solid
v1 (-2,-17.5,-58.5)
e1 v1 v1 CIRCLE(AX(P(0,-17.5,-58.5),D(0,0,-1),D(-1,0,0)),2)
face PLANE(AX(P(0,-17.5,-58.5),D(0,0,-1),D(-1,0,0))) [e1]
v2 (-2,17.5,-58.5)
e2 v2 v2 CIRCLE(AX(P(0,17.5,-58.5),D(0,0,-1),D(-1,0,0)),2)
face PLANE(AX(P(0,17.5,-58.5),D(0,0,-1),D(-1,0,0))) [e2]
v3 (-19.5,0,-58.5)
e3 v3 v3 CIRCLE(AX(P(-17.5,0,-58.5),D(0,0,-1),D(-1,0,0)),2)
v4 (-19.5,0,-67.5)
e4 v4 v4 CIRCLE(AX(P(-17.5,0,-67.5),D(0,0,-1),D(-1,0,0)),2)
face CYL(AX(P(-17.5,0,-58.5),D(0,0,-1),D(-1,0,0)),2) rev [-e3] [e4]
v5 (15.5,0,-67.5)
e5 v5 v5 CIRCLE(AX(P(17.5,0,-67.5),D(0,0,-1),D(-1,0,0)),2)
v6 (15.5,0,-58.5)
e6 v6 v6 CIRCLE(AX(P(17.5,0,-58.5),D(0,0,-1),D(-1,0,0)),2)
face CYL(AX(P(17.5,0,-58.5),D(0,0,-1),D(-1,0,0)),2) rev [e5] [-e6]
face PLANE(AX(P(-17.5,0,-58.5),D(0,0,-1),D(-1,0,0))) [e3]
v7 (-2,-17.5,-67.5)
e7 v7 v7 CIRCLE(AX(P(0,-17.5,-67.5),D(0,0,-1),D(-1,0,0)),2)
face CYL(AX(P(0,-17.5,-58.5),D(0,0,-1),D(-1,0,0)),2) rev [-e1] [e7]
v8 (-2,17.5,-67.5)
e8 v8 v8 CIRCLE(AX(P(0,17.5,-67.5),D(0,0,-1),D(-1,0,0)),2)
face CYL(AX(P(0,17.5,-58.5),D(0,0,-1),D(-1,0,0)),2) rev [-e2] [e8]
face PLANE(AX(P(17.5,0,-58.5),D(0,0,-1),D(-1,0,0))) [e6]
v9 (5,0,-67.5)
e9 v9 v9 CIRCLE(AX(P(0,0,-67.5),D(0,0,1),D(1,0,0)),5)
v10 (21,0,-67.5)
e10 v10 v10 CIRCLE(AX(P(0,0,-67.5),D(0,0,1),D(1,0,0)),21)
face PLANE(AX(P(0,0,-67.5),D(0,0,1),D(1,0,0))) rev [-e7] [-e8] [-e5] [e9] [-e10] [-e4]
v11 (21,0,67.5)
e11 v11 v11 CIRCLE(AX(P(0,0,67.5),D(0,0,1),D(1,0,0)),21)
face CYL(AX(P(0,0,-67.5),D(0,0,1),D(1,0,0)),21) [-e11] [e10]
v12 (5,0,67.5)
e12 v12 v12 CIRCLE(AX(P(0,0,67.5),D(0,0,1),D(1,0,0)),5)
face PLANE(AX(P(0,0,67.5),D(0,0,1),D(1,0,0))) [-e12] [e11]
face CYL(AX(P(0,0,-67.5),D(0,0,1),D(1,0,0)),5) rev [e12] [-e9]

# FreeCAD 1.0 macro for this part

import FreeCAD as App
import Part
import Sketcher

doc = App.newDocument("Part")
params = doc.addObject("Spreadsheet::Sheet", "Params")
for row, (alias, value) in enumerate([
    ("sketch1_diameter", "42 mm"),
    ("pad1_length", "67.5 mm"),
    ("pad1_length2", "67.5 mm"),
    ("sketch2_diameter", "10 mm"),
    ("pocket1_length", "135 mm"),
    ("sketch3_diameter", "4 mm"),
    ("pocket2_length", "9 mm"),
], start=1):
    params.set(f"A{row}", alias)
    params.set(f"B{row}", "=" + value)
    params.setAlias(f"B{row}", alias)

body = doc.addObject("PartDesign::Body", "Body")

# Sketch on XY plane
sketch1 = body.newObject("Sketcher::SketchObject", "Sketch")
sketch1.AttachmentSupport = (doc.getObject("XY_Plane"), [""])
sketch1.MapMode = "FlatFace"
sketch1.addGeometry(Part.Circle(App.Vector(0, 0, 0), App.Vector(0, 0, 1), 21), False)
sketch1.addConstraint([
    Sketcher.Constraint("Coincident", 0, 3, -1, 1),
    Sketcher.Constraint("Diameter", 0, 42.0),
])
sketch1.setExpression("Constraints[1]", "Params.sketch1_diameter")
pad1 = body.newObject("PartDesign::Pad", "Pad")
pad1.Profile = sketch1
pad1.Type = "TwoLengths"
pad1.setExpression("Length", "Params.pad1_length")
pad1.setExpression("Length2", "Params.pad1_length2")

# Sketch on XY plane
sketch2 = body.newObject("Sketcher::SketchObject", "Sketch001")
sketch2.AttachmentSupport = (doc.getObject("XY_Plane"), [""])
sketch2.MapMode = "FlatFace"
sketch2.AttachmentOffset = App.Placement(App.Vector(0, 0, 67.5), App.Rotation())
sketch2.addGeometry(Part.Circle(App.Vector(0, 0, 0), App.Vector(0, 0, 1), 5), False)
sketch2.addConstraint([
    Sketcher.Constraint("Coincident", 0, 3, -1, 1),
    Sketcher.Constraint("Diameter", 0, 10.0),
])
sketch2.setExpression("Constraints[1]", "Params.sketch2_diameter")
pocket1 = body.newObject("PartDesign::Pocket", "Pocket")
pocket1.Profile = sketch2
pocket1.setExpression("Length", "Params.pocket1_length")

# Sketch on XY plane
sketch3 = body.newObject("Sketcher::SketchObject", "Sketch002")
sketch3.AttachmentSupport = (doc.getObject("XY_Plane"), [""])
sketch3.MapMode = "FlatFace"
sketch3.AttachmentOffset = App.Placement(App.Vector(0, 0, -67.5), App.Rotation())
sketch3.addGeometry([
    Part.Circle(App.Vector(0, 17.5, 0), App.Vector(0, 0, 1), 2),
    Part.Circle(App.Vector(-17.5, 0, 0), App.Vector(0, 0, 1), 2),
    Part.Circle(App.Vector(0, -17.5, 0), App.Vector(0, 0, 1), 2),
    Part.Circle(App.Vector(17.5, 0, 0), App.Vector(0, 0, 1), 2),
], False)
sketch3.addConstraint([
    Sketcher.Constraint("Equal", 0, 1),
    Sketcher.Constraint("Equal", 1, 2),
    Sketcher.Constraint("Equal", 2, 3),
    Sketcher.Constraint("Symmetric", 0, 3, 2, 3, -1, 1),
    Sketcher.Constraint("Symmetric", 1, 3, 3, 3, -1, 1),
    Sketcher.Constraint("PointOnObject", 0, 3, -2),
    Sketcher.Constraint("PointOnObject", 1, 3, -1),
    Sketcher.Constraint("Diameter", 0, 4.0),
    Sketcher.Constraint("DistanceY", 2, 3, 0, 3, 35.0),
    Sketcher.Constraint("DistanceX", 1, 3, 3, 3, 35.0),
])
sketch3.setExpression("Constraints[7]", "Params.sketch3_diameter")
pocket2 = body.newObject("PartDesign::Pocket", "Pocket001")
pocket2.Profile = sketch3
pocket2.setExpression("Length", "Params.pocket2_length")
pocket2.Reversed = True

doc.recompute()
